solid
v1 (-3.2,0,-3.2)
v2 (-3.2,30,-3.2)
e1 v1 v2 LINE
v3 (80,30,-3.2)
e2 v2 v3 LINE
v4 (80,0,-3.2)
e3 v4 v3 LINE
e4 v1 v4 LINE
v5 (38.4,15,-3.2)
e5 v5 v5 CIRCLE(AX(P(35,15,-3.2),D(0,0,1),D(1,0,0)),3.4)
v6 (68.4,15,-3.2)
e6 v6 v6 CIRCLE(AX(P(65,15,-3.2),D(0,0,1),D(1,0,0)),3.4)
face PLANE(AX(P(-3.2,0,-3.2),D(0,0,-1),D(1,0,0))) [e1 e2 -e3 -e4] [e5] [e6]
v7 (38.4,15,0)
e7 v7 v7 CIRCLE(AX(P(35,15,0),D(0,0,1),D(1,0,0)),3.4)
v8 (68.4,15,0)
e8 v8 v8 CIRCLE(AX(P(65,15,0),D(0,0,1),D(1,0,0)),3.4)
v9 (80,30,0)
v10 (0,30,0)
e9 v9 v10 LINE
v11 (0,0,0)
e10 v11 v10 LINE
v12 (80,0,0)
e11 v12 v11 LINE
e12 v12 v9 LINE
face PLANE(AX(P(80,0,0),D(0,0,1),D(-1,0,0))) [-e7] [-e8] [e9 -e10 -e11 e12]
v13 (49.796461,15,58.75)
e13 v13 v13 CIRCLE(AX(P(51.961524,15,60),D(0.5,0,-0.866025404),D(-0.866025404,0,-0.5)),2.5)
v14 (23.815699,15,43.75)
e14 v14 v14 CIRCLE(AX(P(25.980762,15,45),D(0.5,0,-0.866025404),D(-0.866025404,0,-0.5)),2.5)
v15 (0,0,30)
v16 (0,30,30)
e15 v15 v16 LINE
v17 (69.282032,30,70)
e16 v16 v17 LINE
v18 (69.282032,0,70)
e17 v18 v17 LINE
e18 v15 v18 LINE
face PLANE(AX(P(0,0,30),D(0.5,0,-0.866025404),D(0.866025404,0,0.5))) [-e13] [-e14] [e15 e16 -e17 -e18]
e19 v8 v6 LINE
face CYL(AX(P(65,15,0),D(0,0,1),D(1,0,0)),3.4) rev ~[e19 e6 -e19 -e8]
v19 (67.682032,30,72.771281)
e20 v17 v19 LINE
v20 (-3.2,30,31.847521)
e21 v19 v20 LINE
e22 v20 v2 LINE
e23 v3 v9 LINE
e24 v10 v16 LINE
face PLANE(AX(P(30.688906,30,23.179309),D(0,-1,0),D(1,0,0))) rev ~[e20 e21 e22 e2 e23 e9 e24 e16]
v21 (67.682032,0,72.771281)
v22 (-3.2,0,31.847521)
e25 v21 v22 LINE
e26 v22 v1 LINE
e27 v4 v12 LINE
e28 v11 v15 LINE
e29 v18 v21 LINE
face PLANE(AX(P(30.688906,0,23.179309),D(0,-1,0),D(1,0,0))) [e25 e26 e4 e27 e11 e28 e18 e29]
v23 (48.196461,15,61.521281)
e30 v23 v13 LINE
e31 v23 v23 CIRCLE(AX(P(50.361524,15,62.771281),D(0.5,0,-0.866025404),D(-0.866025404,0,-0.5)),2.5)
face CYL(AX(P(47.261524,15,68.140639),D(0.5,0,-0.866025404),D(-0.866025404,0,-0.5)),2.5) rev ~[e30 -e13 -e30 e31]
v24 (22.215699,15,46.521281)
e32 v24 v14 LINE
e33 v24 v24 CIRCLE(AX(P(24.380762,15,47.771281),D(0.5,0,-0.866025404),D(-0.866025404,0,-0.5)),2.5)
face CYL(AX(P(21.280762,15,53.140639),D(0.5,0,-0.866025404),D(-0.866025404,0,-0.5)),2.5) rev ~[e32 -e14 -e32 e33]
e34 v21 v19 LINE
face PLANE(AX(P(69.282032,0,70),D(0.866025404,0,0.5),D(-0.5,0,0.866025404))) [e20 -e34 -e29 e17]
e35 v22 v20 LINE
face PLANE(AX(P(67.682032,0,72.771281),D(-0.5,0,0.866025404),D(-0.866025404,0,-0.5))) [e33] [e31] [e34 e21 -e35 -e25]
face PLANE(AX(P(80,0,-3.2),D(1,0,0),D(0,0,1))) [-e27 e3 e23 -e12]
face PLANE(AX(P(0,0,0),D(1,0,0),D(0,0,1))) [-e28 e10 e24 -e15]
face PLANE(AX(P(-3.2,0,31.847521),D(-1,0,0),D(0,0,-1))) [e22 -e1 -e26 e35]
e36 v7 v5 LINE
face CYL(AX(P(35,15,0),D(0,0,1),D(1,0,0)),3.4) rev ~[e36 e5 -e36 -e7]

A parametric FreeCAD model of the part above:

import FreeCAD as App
import Part
import Sketcher
from FreeCAD import Vector
Q = App.Units.Quantity

doc = App.newDocument("Part")
body = doc.addObject("PartDesign::Body", "Body")

# Sketch on XZ plane
sketch1 = doc.addObject("Sketcher::SketchObject", "Sketch")
body.addObject(sketch1)
sketch1.AttachmentSupport = (doc.XZ_Plane, [""])
sketch1.MapMode = "FlatFace"
sketch1.addGeometry(Part.LineSegment(Vector(80, 0, 0), Vector(0, 0, 0)), False)
sketch1.addGeometry(Part.LineSegment(Vector(0, 0, 0), Vector(0, 30, 0)), False)
sketch1.addGeometry(Part.LineSegment(Vector(0, 30, 0), Vector(69.3, 70, 0)), False)
sketch1.addGeometry(Part.LineSegment(Vector(69.3, 70, 0), Vector(67.7, 72.8, 0)), False)
sketch1.addGeometry(Part.LineSegment(Vector(67.7, 72.8, 0), Vector(-3.2, 31.8, 0)), False)
sketch1.addGeometry(Part.LineSegment(Vector(-3.2, 31.8, 0), Vector(-3.2, -3.2, 0)), False)
sketch1.addGeometry(Part.LineSegment(Vector(-3.2, -3.2, 0), Vector(80, -3.2, 0)), False)
sketch1.addGeometry(Part.LineSegment(Vector(80, -3.2, 0), Vector(80, 0, 0)), False)
sketch1.addConstraint(Sketcher.Constraint("Coincident", 0, 2, 1, 1))
sketch1.addConstraint(Sketcher.Constraint("Coincident", 1, 2, 2, 1))
sketch1.addConstraint(Sketcher.Constraint("Coincident", 2, 2, 3, 1))
sketch1.addConstraint(Sketcher.Constraint("Coincident", 3, 2, 4, 1))
sketch1.addConstraint(Sketcher.Constraint("Coincident", 4, 2, 5, 1))
sketch1.addConstraint(Sketcher.Constraint("Coincident", 5, 2, 6, 1))
sketch1.addConstraint(Sketcher.Constraint("Coincident", 6, 2, 7, 1))
sketch1.addConstraint(Sketcher.Constraint("Coincident", 7, 2, 0, 1))
sketch1.addConstraint(Sketcher.Constraint("Horizontal", 0))
sketch1.addConstraint(Sketcher.Constraint("Vertical", 1))
sketch1.addConstraint(Sketcher.Constraint("Vertical", 5))
sketch1.addConstraint(Sketcher.Constraint("Horizontal", 6))
sketch1.addConstraint(Sketcher.Constraint("Vertical", 7))
sketch1.addConstraint(Sketcher.Constraint("Coincident", 0, 2, -1, 1))
sketch1.addConstraint(Sketcher.Constraint("Perpendicular", 2, 3))
sketch1.addConstraint(Sketcher.Constraint("Perpendicular", 3, 4))
sketch1.addConstraint(Sketcher.Constraint("DistanceX", 0, 2, 0, 1, 80.0))
sketch1.addConstraint(Sketcher.Constraint("DistanceY", 1, 1, 1, 2, 30.0))
sketch1.addConstraint(Sketcher.Constraint("Angle", 2, Q("30 deg")))
sketch1.addConstraint(Sketcher.Constraint("Distance", 2, 80.0))
sketch1.addConstraint(Sketcher.Constraint("DistanceX", 6, 1, 6, 2, 83.2))
sketch1.addConstraint(Sketcher.Constraint("DistanceY", 7, 1, 7, 2, 3.2))
sketch1.addConstraint(Sketcher.Constraint("Distance", 3, 3.2))
pad1 = doc.addObject("PartDesign::Pad", "Pad")
body.addObject(pad1)
pad1.Profile = sketch1
pad1.Length = 30
pad1.Reversed = True

# Sketch on XY plane
sketch2 = doc.addObject("Sketcher::SketchObject", "Sketch001")
body.addObject(sketch2)
sketch2.AttachmentSupport = (doc.XY_Plane, [""])
sketch2.MapMode = "FlatFace"
sketch2.addGeometry(Part.Circle(Vector(65, 15, 0), Vector(0, 0, 1), 3.4), False)
sketch2.addGeometry(Part.Circle(Vector(35, 15, 0), Vector(0, 0, 1), 3.4), False)
sketch2.addConstraint(Sketcher.Constraint("Equal", 0, 1))
sketch2.addConstraint(Sketcher.Constraint("Horizontal", 0, 3, 1, 3))
sketch2.addConstraint(Sketcher.Constraint("Diameter", 0, 6.8))
sketch2.addConstraint(Sketcher.Constraint("DistanceX", -1, 1, 0, 3, 65.0))
sketch2.addConstraint(Sketcher.Constraint("DistanceY", -1, 1, 0, 3, 15.0))
sketch2.addConstraint(Sketcher.Constraint("DistanceX", -1, 1, 1, 3, 35.0))
pocket1 = doc.addObject("PartDesign::Pocket", "Pocket")
body.addObject(pocket1)
pocket1.Profile = sketch2
pocket1.Type = "ThroughAll"

# Sketch on an angled plane
sketch3 = doc.addObject("Sketcher::SketchObject", "Sketch002")
body.addObject(sketch3)
sketch3.Placement = App.Placement(Vector(-14.590381, 0, 25.271281), App.Rotation(Vector(0.866025404, 0, 0.5), Vector(0, 1, 0), Vector(-0.5, 0, 0.866025404), "ZXY"))
sketch3.addGeometry(Part.Circle(Vector(75, 15, 0), Vector(0, 0, 1), 2.5), False)
sketch3.addGeometry(Part.Circle(Vector(45, 15, 0), Vector(0, 0, 1), 2.5), False)
sketch3.addConstraint(Sketcher.Constraint("Equal", 0, 1))
sketch3.addConstraint(Sketcher.Constraint("Horizontal", 0, 3, 1, 3))
sketch3.addConstraint(Sketcher.Constraint("Diameter", 0, 5.0))
sketch3.addConstraint(Sketcher.Constraint("DistanceX", -1, 1, 0, 3, 75.0))
sketch3.addConstraint(Sketcher.Constraint("DistanceY", -1, 1, 0, 3, 15.0))
sketch3.addConstraint(Sketcher.Constraint("DistanceX", -1, 1, 1, 3, 45.0))
doc.recompute()
hole = doc.addObject("PartDesign::Hole", "Hole")
body.addObject(hole)
hole.Profile = sketch3
hole.ThreadType = "None"
hole.Diameter = 5
hole.DepthType = "Dimension"
hole.Depth = 6.2
hole.DrillPoint = "Angled"
hole.DrillPointAngle = 118

doc.recompute()
